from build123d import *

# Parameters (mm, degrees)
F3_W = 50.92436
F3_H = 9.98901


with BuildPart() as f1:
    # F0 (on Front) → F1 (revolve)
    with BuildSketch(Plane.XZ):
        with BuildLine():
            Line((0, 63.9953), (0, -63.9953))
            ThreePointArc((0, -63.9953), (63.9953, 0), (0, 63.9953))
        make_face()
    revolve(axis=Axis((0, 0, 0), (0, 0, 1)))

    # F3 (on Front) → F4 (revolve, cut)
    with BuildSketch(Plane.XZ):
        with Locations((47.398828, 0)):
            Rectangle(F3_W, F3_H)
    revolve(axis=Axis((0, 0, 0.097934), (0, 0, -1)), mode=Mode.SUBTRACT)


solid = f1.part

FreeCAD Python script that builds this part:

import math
import FreeCAD as App
import Part
import Sketcher
from FreeCAD import Vector
Q = App.Units.Quantity

doc = App.newDocument("Part")
body = doc.addObject("PartDesign::Body", "Body")

sketch1 = doc.addObject("Sketcher::SketchObject", "Sketch")
body.addObject(sketch1)
sketch1.AttachmentSupport = (doc.XZ_Plane, [""])
sketch1.MapMode = "FlatFace"
sketch1.addGeometry(Part.LineSegment(Vector(0, 64, 0), Vector(0, -64, 0)), False)
sketch1.addGeometry(Part.ArcOfCircle(Part.Circle(Vector(0, 0, 0), Vector(0, 0, 1), 64), math.radians(-90), math.radians(90)), False)
sketch1.addConstraint(Sketcher.Constraint("Coincident", 0, 1, 1, 2))
sketch1.addConstraint(Sketcher.Constraint("Coincident", 1, 1, 0, 2))
sketch1.addConstraint(Sketcher.Constraint("Vertical", 0))
sketch1.addConstraint(Sketcher.Constraint("Coincident", 1, 3, -1, 1))
sketch1.addConstraint(Sketcher.Constraint("PointOnObject", 0, 1, -2))
sketch1.addConstraint(Sketcher.Constraint("Radius", 1, Q("2.5195 in")))
revolution = doc.addObject("PartDesign::Revolution", "Revolution")
body.addObject(revolution)
revolution.Profile = sketch1
revolution.ReferenceAxis = (sketch1, ["V_Axis"])
revolution.Angle = 360

sketch2 = doc.addObject("Sketcher::SketchObject", "Sketch001")
body.addObject(sketch2)
sketch2.AttachmentSupport = (doc.XZ_Plane, [""])
sketch2.MapMode = "FlatFace"
sketch2.addGeometry(Part.LineSegment(Vector(22, 5, 0), Vector(22, -5, 0)), False)
sketch2.addGeometry(Part.LineSegment(Vector(22, -5, 0), Vector(73, -5, 0)), False)
sketch2.addGeometry(Part.LineSegment(Vector(73, -5, 0), Vector(73, 5, 0)), False)
sketch2.addGeometry(Part.LineSegment(Vector(73, 5, 0), Vector(22, 5, 0)), False)
sketch2.addConstraint(Sketcher.Constraint("Coincident", 0, 2, 1, 1))
sketch2.addConstraint(Sketcher.Constraint("Coincident", 1, 2, 2, 1))
sketch2.addConstraint(Sketcher.Constraint("Coincident", 2, 2, 3, 1))
sketch2.addConstraint(Sketcher.Constraint("Coincident", 3, 2, 0, 1))
sketch2.addConstraint(Sketcher.Constraint("Vertical", 0))
sketch2.addConstraint(Sketcher.Constraint("Horizontal", 1))
sketch2.addConstraint(Sketcher.Constraint("Vertical", 2))
sketch2.addConstraint(Sketcher.Constraint("Horizontal", 3))
sketch2.addConstraint(Sketcher.Constraint("DistanceX", 1, 1, 1, 2, Q("50.92436 mm")))
sketch2.addConstraint(Sketcher.Constraint("DistanceY", 0, 2, 0, 1, Q("9.98901 mm")))
sketch2.addConstraint(Sketcher.Constraint("DistanceX", -1, 1, 0, 2, Q("21.936648 mm")))
sketch2.addConstraint(Sketcher.Constraint("DistanceY", 0, 2, -1, 1, Q("4.994505 mm")))
groove = doc.addObject("PartDesign::Groove", "Groove")
body.addObject(groove)
groove.Profile = sketch2
groove.ReferenceAxis = (sketch2, ["V_Axis"])
groove.Angle = 360

doc.recompute()
